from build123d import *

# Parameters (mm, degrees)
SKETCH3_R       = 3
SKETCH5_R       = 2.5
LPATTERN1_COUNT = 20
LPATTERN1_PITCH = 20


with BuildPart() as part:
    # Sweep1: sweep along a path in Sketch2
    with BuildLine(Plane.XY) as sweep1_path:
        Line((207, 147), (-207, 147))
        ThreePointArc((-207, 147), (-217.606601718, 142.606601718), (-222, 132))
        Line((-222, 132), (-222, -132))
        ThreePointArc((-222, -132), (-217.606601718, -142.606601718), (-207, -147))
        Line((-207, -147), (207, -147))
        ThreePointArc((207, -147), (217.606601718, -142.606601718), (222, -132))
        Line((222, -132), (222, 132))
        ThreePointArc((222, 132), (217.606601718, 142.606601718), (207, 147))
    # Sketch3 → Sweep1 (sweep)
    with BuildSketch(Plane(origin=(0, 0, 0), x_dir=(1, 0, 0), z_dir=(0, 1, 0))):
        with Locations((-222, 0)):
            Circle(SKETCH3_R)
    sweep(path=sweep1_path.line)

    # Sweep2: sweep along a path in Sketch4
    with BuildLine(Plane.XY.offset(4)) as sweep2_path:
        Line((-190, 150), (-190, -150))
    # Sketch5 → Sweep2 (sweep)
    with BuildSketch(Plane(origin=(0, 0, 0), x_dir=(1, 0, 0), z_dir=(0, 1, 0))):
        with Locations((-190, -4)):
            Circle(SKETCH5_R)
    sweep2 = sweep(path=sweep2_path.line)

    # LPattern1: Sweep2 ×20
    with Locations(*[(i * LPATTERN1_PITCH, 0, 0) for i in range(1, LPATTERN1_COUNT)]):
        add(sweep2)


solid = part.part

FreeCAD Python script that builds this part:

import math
import FreeCAD as App
import Part
import Sketcher
Q = App.Units.Quantity

doc = App.newDocument("Part")
body = doc.addObject("PartDesign::Body", "Body")

# Sketch on XZ plane
sketch1 = doc.addObject("Sketcher::SketchObject", "Sketch")
body.addObject(sketch1)
sketch1.AttachmentSupport = (doc.XZ_Plane, [""])
sketch1.MapMode = "FlatFace"
sketch1.addGeometry(Part.Circle(App.Vector(-222, 0, 0), App.Vector(0, 0, 1), 3), False)
sketch1.addConstraint(Sketcher.Constraint("PointOnObject", 0, 3, -1))
sketch1.addConstraint(Sketcher.Constraint("Diameter", 0, Q("6 mm")))
sketch1.addConstraint(Sketcher.Constraint("DistanceX", 0, 3, -1, 1, Q("222 mm")))

# Sketch on XY plane
sketch2 = doc.addObject("Sketcher::SketchObject", "Sketch001")
body.addObject(sketch2)
sketch2.AttachmentSupport = (doc.XY_Plane, [""])
sketch2.MapMode = "FlatFace"
sketch2.addGeometry(Part.LineSegment(App.Vector(207, 147, 0), App.Vector(-207, 147, 0)), False)
sketch2.addGeometry(Part.ArcOfCircle(Part.Circle(App.Vector(-207, 132, 0), App.Vector(0, 0, 1), 15), math.radians(90), math.radians(180)), False)
sketch2.addGeometry(Part.LineSegment(App.Vector(-222, 132, 0), App.Vector(-222, -132, 0)), False)
sketch2.addGeometry(Part.ArcOfCircle(Part.Circle(App.Vector(-207, -132, 0), App.Vector(0, 0, 1), 15), math.radians(180), math.radians(270)), False)
sketch2.addGeometry(Part.LineSegment(App.Vector(-207, -147, 0), App.Vector(207, -147, 0)), False)
sketch2.addGeometry(Part.ArcOfCircle(Part.Circle(App.Vector(207, -132, 0), App.Vector(0, 0, 1), 15), math.radians(-90), math.radians(0)), False)
sketch2.addGeometry(Part.LineSegment(App.Vector(222, -132, 0), App.Vector(222, 132, 0)), False)
sketch2.addGeometry(Part.ArcOfCircle(Part.Circle(App.Vector(207, 132, 0), App.Vector(0, 0, 1), 15), math.radians(0), math.radians(90)), False)
sketch2.addConstraint(Sketcher.Constraint("Tangent", 0, 2, 1, 1))
sketch2.addConstraint(Sketcher.Constraint("Tangent", 1, 2, 2, 1))
sketch2.addConstraint(Sketcher.Constraint("Tangent", 2, 2, 3, 1))
sketch2.addConstraint(Sketcher.Constraint("Tangent", 3, 2, 4, 1))
sketch2.addConstraint(Sketcher.Constraint("Tangent", 4, 2, 5, 1))
sketch2.addConstraint(Sketcher.Constraint("Tangent", 5, 2, 6, 1))
sketch2.addConstraint(Sketcher.Constraint("Tangent", 6, 2, 7, 1))
sketch2.addConstraint(Sketcher.Constraint("Tangent", 7, 2, 0, 1))
sketch2.addConstraint(Sketcher.Constraint("Horizontal", 0))
sketch2.addConstraint(Sketcher.Constraint("Vertical", 2))
sketch2.addConstraint(Sketcher.Constraint("Horizontal", 4))
sketch2.addConstraint(Sketcher.Constraint("Vertical", 6))
sketch2.addConstraint(Sketcher.Constraint("Equal", 1, 3))
sketch2.addConstraint(Sketcher.Constraint("Equal", 3, 5))
sketch2.addConstraint(Sketcher.Constraint("Equal", 5, 7))
sketch2.addConstraint(Sketcher.Constraint("Symmetric", 1, 3, 5, 3, -1, 1))
sketch2.addConstraint(Sketcher.Constraint("Radius", 1, Q("15 mm")))
sketch2.addConstraint(Sketcher.Constraint("DistanceX", 0, 2, 0, 1, Q("414 mm")))
sketch2.addConstraint(Sketcher.Constraint("DistanceY", 2, 2, 2, 1, Q("264 mm")))
doc.recompute()

additivepipe = doc.addObject("PartDesign::AdditivePipe", "AdditivePipe")
body.addObject(additivepipe)
additivepipe.Profile = sketch1
additivepipe.Spine = (sketch2, ["Edge1", "Edge2", "Edge3", "Edge4", "Edge5", "Edge6", "Edge7", "Edge8"])

# Sketch on XZ plane
sketch3 = doc.addObject("Sketcher::SketchObject", "Sketch002")
body.addObject(sketch3)
sketch3.AttachmentSupport = (doc.XZ_Plane, [""])
sketch3.MapMode = "FlatFace"
sketch3.addGeometry(Part.Circle(App.Vector(-190, 4, 0), App.Vector(0, 0, 1), 2.5), False)
sketch3.addConstraint(Sketcher.Constraint("Diameter", 0, Q("5 mm")))
sketch3.addConstraint(Sketcher.Constraint("DistanceX", 0, 3, -1, 1, Q("190 mm")))
sketch3.addConstraint(Sketcher.Constraint("DistanceY", -1, 1, 0, 3, Q("4 mm")))

# Sketch on XY plane
sketch4 = doc.addObject("Sketcher::SketchObject", "Sketch003")
body.addObject(sketch4)
sketch4.AttachmentSupport = (doc.XY_Plane, [""])
sketch4.MapMode = "FlatFace"
sketch4.AttachmentOffset = App.Placement(App.Vector(0, 0, 4), App.Rotation())
sketch4.addGeometry(Part.LineSegment(App.Vector(-190, 150, 0), App.Vector(-190, -150, 0)), False)
sketch4.addConstraint(Sketcher.Constraint("Vertical", 0))
sketch4.addConstraint(Sketcher.Constraint("DistanceY", 0, 2, 0, 1, Q("300 mm")))
sketch4.addConstraint(Sketcher.Constraint("DistanceX", 0, 1, -1, 1, Q("190 mm")))
sketch4.addConstraint(Sketcher.Constraint("DistanceY", -1, 1, 0, 1, Q("150 mm")))
doc.recompute()

additivepipe2 = doc.addObject("PartDesign::AdditivePipe", "AdditivePipe001")
body.addObject(additivepipe2)
additivepipe2.Profile = sketch3
additivepipe2.Spine = (sketch4, ["Edge1"])
doc.recompute()

linearpattern = doc.addObject("PartDesign::LinearPattern", "LinearPattern")
body.addObject(linearpattern)
linearpattern.Originals = [additivepipe2]
linearpattern.Direction = (doc.X_Axis, [""])
linearpattern.Mode = "offset"
linearpattern.Offset = 20
linearpattern.Occurrences = 20
body.Tip = linearpattern

doc.recompute()
